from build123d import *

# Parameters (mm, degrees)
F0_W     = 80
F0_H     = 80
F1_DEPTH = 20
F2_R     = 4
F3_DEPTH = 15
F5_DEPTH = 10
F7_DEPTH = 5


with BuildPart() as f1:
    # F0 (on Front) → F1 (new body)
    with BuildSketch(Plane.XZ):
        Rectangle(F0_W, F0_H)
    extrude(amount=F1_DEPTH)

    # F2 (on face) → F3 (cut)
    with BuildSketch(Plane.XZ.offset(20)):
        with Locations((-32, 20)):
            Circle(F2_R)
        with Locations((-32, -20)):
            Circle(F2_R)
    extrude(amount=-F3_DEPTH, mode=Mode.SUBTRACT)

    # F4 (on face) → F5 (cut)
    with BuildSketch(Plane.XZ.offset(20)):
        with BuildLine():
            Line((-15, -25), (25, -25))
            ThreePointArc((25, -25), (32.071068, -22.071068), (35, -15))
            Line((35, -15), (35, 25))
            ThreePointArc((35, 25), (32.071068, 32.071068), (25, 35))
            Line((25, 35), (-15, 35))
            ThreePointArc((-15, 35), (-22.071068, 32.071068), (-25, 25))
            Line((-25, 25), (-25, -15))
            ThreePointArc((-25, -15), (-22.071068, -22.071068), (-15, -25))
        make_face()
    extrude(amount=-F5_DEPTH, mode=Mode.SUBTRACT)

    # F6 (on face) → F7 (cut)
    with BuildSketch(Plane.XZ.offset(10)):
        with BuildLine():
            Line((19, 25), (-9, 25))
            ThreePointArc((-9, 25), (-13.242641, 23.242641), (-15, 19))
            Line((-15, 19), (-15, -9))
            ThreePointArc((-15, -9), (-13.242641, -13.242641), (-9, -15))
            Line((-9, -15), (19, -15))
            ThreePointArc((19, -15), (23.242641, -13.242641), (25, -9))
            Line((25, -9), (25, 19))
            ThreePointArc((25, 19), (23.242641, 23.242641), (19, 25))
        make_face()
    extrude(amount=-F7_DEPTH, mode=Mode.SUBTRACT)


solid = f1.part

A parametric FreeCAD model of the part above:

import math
import FreeCAD as App
import Part
import Sketcher
Q = App.Units.Quantity


def add_polygon(sketch, points):
    """Adds a closed chain of lines whose ends are joined by coincident constraints."""
    first, n = sketch.GeometryCount, len(points)
    for a, b in zip(points, points[1:] + points[:1]):
        sketch.addGeometry(Part.LineSegment(App.Vector(*a, 0), App.Vector(*b, 0)), False)
    for i in range(n):
        sketch.addConstraint(Sketcher.Constraint("Coincident", first + i, 2, first + (i + 1) % n, 1))

doc = App.newDocument("Part")
body = doc.addObject("PartDesign::Body", "Body")

# Sketch on XZ plane
sketch1 = body.newObject("Sketcher::SketchObject", "Sketch")
sketch1.AttachmentSupport = (doc.getObject("XZ_Plane"), [""])
sketch1.MapMode = "FlatFace"
add_polygon(sketch1, [(-40, 40), (-40, -40), (40, -40), (40, 40)])  # lines 0-3
sketch1.addConstraint([
    Sketcher.Constraint("Vertical", 0),
    Sketcher.Constraint("Horizontal", 1),
    Sketcher.Constraint("Vertical", 2),
    Sketcher.Constraint("Horizontal", 3),
    Sketcher.Constraint("Symmetric", 0, 2, 2, 2, -1, 1),
    Sketcher.Constraint("Equal", 3, 0),
    Sketcher.Constraint("DistanceX", 1, 1, 1, 2, Q("80 mm")),
])
pad1 = body.newObject("PartDesign::Pad", "Pad")
pad1.Profile = sketch1
pad1.Length = 20

# Sketch on XZ plane
sketch2 = body.newObject("Sketcher::SketchObject", "Sketch001")
sketch2.AttachmentSupport = (doc.getObject("XZ_Plane"), [""])
sketch2.MapMode = "FlatFace"
sketch2.AttachmentOffset = App.Placement(App.Vector(0, 0, 20), App.Rotation())
sketch2.addGeometry([
    Part.Circle(App.Vector(-32, 20, 0), App.Vector(0, 0, 1), 4),
    Part.Circle(App.Vector(-32, -20, 0), App.Vector(0, 0, 1), 4),
], False)
sketch2.addConstraint([
    Sketcher.Constraint("Equal", 0, 1),
    Sketcher.Constraint("Symmetric", 0, 3, 1, 3, -1),
    Sketcher.Constraint("Diameter", 0, Q("8 mm")),
    Sketcher.Constraint("DistanceX", 0, 3, -1, 1, Q("32 mm")),
    Sketcher.Constraint("DistanceY", -1, 1, 0, 3, Q("20 mm")),
])
pocket1 = body.newObject("PartDesign::Pocket", "Pocket")
pocket1.Profile = sketch2
pocket1.Length = 15

# Sketch on XZ plane
sketch3 = body.newObject("Sketcher::SketchObject", "Sketch002")
sketch3.AttachmentSupport = (doc.getObject("XZ_Plane"), [""])
sketch3.MapMode = "FlatFace"
sketch3.AttachmentOffset = App.Placement(App.Vector(0, 0, 20), App.Rotation())
sketch3.addGeometry([
    Part.LineSegment(App.Vector(-15, -25, 0), App.Vector(25, -25, 0)),  # 0
    Part.ArcOfCircle(Part.Circle(App.Vector(25, -15, 0), App.Vector(0, 0, 1), 10), math.radians(-90), math.radians(0)),  # 1
    Part.LineSegment(App.Vector(35, -15, 0), App.Vector(35, 25, 0)),  # 2
    Part.ArcOfCircle(Part.Circle(App.Vector(25, 25, 0), App.Vector(0, 0, 1), 10), math.radians(0), math.radians(90)),  # 3
    Part.LineSegment(App.Vector(25, 35, 0), App.Vector(-15, 35, 0)),  # 4
    Part.ArcOfCircle(Part.Circle(App.Vector(-15, 25, 0), App.Vector(0, 0, 1), 10), math.radians(90), math.radians(180)),  # 5
    Part.LineSegment(App.Vector(-25, 25, 0), App.Vector(-25, -15, 0)),  # 6
    Part.ArcOfCircle(Part.Circle(App.Vector(-15, -15, 0), App.Vector(0, 0, 1), 10), math.radians(180), math.radians(270)),  # 7
], False)
sketch3.addConstraint([
    Sketcher.Constraint("Tangent", 0, 2, 1, 1),
    Sketcher.Constraint("Tangent", 1, 2, 2, 1),
    Sketcher.Constraint("Tangent", 2, 2, 3, 1),
    Sketcher.Constraint("Tangent", 3, 2, 4, 1),
    Sketcher.Constraint("Tangent", 4, 2, 5, 1),
    Sketcher.Constraint("Tangent", 5, 2, 6, 1),
    Sketcher.Constraint("Tangent", 6, 2, 7, 1),
    Sketcher.Constraint("Tangent", 7, 2, 0, 1),
    Sketcher.Constraint("Horizontal", 0),
    Sketcher.Constraint("Vertical", 2),
    Sketcher.Constraint("Horizontal", 4),
    Sketcher.Constraint("Vertical", 6),
    Sketcher.Constraint("Equal", 1, 3),
    Sketcher.Constraint("Equal", 3, 5),
    Sketcher.Constraint("Equal", 5, 7),
    Sketcher.Constraint("Symmetric", 0, 2, 5, 2, -1, 1),
    Sketcher.Constraint("Equal", 4, 2),
    Sketcher.Constraint("Radius", 1, Q("9.999999 mm")),
    Sketcher.Constraint("DistanceX", 0, 1, 0, 2, Q("40 mm")),
])
pocket2 = body.newObject("PartDesign::Pocket", "Pocket001")
pocket2.Profile = sketch3
pocket2.Length = 10

# Sketch on XZ plane
sketch4 = body.newObject("Sketcher::SketchObject", "Sketch003")
sketch4.AttachmentSupport = (doc.getObject("XZ_Plane"), [""])
sketch4.MapMode = "FlatFace"
sketch4.AttachmentOffset = App.Placement(App.Vector(0, 0, 10), App.Rotation())
sketch4.addGeometry([
    Part.LineSegment(App.Vector(19, 25, 0), App.Vector(-9, 25, 0)),  # 0
    Part.ArcOfCircle(Part.Circle(App.Vector(-9, 19, 0), App.Vector(0, 0, 1), 6), math.radians(90), math.radians(180)),  # 1
    Part.LineSegment(App.Vector(-15, 19, 0), App.Vector(-15, -9, 0)),  # 2
    Part.ArcOfCircle(Part.Circle(App.Vector(-9, -9, 0), App.Vector(0, 0, 1), 6), math.radians(180), math.radians(270)),  # 3
    Part.LineSegment(App.Vector(-9, -15, 0), App.Vector(19, -15, 0)),  # 4
    Part.ArcOfCircle(Part.Circle(App.Vector(19, -9, 0), App.Vector(0, 0, 1), 6), math.radians(-90), math.radians(0)),  # 5
    Part.LineSegment(App.Vector(25, -9, 0), App.Vector(25, 19, 0)),  # 6
    Part.ArcOfCircle(Part.Circle(App.Vector(19, 19, 0), App.Vector(0, 0, 1), 6), math.radians(0), math.radians(90)),  # 7
], False)
sketch4.addConstraint([
    Sketcher.Constraint("Tangent", 0, 2, 1, 1),
    Sketcher.Constraint("Tangent", 1, 2, 2, 1),
    Sketcher.Constraint("Tangent", 2, 2, 3, 1),
    Sketcher.Constraint("Tangent", 3, 2, 4, 1),
    Sketcher.Constraint("Tangent", 4, 2, 5, 1),
    Sketcher.Constraint("Tangent", 5, 2, 6, 1),
    Sketcher.Constraint("Tangent", 6, 2, 7, 1),
    Sketcher.Constraint("Tangent", 7, 2, 0, 1),
    Sketcher.Constraint("Horizontal", 0),
    Sketcher.Constraint("Vertical", 2),
    Sketcher.Constraint("Horizontal", 4),
    Sketcher.Constraint("Vertical", 6),
    Sketcher.Constraint("Equal", 1, 3),
    Sketcher.Constraint("Equal", 3, 5),
    Sketcher.Constraint("Equal", 5, 7),
    Sketcher.Constraint("Equal", 4, 2),
    Sketcher.Constraint("Radius", 1, Q("5.999999 mm")),
    Sketcher.Constraint("DistanceX", 0, 2, 0, 1, Q("28 mm")),
    Sketcher.Constraint("DistanceX", 1, 3, -1, 1, Q("9.000001 mm")),
    Sketcher.Constraint("DistanceY", -1, 1, 1, 3, Q("19.000001 mm")),
])
pocket3 = body.newObject("PartDesign::Pocket", "Pocket002")
pocket3.Profile = sketch4
pocket3.Length = 5

doc.recompute()
